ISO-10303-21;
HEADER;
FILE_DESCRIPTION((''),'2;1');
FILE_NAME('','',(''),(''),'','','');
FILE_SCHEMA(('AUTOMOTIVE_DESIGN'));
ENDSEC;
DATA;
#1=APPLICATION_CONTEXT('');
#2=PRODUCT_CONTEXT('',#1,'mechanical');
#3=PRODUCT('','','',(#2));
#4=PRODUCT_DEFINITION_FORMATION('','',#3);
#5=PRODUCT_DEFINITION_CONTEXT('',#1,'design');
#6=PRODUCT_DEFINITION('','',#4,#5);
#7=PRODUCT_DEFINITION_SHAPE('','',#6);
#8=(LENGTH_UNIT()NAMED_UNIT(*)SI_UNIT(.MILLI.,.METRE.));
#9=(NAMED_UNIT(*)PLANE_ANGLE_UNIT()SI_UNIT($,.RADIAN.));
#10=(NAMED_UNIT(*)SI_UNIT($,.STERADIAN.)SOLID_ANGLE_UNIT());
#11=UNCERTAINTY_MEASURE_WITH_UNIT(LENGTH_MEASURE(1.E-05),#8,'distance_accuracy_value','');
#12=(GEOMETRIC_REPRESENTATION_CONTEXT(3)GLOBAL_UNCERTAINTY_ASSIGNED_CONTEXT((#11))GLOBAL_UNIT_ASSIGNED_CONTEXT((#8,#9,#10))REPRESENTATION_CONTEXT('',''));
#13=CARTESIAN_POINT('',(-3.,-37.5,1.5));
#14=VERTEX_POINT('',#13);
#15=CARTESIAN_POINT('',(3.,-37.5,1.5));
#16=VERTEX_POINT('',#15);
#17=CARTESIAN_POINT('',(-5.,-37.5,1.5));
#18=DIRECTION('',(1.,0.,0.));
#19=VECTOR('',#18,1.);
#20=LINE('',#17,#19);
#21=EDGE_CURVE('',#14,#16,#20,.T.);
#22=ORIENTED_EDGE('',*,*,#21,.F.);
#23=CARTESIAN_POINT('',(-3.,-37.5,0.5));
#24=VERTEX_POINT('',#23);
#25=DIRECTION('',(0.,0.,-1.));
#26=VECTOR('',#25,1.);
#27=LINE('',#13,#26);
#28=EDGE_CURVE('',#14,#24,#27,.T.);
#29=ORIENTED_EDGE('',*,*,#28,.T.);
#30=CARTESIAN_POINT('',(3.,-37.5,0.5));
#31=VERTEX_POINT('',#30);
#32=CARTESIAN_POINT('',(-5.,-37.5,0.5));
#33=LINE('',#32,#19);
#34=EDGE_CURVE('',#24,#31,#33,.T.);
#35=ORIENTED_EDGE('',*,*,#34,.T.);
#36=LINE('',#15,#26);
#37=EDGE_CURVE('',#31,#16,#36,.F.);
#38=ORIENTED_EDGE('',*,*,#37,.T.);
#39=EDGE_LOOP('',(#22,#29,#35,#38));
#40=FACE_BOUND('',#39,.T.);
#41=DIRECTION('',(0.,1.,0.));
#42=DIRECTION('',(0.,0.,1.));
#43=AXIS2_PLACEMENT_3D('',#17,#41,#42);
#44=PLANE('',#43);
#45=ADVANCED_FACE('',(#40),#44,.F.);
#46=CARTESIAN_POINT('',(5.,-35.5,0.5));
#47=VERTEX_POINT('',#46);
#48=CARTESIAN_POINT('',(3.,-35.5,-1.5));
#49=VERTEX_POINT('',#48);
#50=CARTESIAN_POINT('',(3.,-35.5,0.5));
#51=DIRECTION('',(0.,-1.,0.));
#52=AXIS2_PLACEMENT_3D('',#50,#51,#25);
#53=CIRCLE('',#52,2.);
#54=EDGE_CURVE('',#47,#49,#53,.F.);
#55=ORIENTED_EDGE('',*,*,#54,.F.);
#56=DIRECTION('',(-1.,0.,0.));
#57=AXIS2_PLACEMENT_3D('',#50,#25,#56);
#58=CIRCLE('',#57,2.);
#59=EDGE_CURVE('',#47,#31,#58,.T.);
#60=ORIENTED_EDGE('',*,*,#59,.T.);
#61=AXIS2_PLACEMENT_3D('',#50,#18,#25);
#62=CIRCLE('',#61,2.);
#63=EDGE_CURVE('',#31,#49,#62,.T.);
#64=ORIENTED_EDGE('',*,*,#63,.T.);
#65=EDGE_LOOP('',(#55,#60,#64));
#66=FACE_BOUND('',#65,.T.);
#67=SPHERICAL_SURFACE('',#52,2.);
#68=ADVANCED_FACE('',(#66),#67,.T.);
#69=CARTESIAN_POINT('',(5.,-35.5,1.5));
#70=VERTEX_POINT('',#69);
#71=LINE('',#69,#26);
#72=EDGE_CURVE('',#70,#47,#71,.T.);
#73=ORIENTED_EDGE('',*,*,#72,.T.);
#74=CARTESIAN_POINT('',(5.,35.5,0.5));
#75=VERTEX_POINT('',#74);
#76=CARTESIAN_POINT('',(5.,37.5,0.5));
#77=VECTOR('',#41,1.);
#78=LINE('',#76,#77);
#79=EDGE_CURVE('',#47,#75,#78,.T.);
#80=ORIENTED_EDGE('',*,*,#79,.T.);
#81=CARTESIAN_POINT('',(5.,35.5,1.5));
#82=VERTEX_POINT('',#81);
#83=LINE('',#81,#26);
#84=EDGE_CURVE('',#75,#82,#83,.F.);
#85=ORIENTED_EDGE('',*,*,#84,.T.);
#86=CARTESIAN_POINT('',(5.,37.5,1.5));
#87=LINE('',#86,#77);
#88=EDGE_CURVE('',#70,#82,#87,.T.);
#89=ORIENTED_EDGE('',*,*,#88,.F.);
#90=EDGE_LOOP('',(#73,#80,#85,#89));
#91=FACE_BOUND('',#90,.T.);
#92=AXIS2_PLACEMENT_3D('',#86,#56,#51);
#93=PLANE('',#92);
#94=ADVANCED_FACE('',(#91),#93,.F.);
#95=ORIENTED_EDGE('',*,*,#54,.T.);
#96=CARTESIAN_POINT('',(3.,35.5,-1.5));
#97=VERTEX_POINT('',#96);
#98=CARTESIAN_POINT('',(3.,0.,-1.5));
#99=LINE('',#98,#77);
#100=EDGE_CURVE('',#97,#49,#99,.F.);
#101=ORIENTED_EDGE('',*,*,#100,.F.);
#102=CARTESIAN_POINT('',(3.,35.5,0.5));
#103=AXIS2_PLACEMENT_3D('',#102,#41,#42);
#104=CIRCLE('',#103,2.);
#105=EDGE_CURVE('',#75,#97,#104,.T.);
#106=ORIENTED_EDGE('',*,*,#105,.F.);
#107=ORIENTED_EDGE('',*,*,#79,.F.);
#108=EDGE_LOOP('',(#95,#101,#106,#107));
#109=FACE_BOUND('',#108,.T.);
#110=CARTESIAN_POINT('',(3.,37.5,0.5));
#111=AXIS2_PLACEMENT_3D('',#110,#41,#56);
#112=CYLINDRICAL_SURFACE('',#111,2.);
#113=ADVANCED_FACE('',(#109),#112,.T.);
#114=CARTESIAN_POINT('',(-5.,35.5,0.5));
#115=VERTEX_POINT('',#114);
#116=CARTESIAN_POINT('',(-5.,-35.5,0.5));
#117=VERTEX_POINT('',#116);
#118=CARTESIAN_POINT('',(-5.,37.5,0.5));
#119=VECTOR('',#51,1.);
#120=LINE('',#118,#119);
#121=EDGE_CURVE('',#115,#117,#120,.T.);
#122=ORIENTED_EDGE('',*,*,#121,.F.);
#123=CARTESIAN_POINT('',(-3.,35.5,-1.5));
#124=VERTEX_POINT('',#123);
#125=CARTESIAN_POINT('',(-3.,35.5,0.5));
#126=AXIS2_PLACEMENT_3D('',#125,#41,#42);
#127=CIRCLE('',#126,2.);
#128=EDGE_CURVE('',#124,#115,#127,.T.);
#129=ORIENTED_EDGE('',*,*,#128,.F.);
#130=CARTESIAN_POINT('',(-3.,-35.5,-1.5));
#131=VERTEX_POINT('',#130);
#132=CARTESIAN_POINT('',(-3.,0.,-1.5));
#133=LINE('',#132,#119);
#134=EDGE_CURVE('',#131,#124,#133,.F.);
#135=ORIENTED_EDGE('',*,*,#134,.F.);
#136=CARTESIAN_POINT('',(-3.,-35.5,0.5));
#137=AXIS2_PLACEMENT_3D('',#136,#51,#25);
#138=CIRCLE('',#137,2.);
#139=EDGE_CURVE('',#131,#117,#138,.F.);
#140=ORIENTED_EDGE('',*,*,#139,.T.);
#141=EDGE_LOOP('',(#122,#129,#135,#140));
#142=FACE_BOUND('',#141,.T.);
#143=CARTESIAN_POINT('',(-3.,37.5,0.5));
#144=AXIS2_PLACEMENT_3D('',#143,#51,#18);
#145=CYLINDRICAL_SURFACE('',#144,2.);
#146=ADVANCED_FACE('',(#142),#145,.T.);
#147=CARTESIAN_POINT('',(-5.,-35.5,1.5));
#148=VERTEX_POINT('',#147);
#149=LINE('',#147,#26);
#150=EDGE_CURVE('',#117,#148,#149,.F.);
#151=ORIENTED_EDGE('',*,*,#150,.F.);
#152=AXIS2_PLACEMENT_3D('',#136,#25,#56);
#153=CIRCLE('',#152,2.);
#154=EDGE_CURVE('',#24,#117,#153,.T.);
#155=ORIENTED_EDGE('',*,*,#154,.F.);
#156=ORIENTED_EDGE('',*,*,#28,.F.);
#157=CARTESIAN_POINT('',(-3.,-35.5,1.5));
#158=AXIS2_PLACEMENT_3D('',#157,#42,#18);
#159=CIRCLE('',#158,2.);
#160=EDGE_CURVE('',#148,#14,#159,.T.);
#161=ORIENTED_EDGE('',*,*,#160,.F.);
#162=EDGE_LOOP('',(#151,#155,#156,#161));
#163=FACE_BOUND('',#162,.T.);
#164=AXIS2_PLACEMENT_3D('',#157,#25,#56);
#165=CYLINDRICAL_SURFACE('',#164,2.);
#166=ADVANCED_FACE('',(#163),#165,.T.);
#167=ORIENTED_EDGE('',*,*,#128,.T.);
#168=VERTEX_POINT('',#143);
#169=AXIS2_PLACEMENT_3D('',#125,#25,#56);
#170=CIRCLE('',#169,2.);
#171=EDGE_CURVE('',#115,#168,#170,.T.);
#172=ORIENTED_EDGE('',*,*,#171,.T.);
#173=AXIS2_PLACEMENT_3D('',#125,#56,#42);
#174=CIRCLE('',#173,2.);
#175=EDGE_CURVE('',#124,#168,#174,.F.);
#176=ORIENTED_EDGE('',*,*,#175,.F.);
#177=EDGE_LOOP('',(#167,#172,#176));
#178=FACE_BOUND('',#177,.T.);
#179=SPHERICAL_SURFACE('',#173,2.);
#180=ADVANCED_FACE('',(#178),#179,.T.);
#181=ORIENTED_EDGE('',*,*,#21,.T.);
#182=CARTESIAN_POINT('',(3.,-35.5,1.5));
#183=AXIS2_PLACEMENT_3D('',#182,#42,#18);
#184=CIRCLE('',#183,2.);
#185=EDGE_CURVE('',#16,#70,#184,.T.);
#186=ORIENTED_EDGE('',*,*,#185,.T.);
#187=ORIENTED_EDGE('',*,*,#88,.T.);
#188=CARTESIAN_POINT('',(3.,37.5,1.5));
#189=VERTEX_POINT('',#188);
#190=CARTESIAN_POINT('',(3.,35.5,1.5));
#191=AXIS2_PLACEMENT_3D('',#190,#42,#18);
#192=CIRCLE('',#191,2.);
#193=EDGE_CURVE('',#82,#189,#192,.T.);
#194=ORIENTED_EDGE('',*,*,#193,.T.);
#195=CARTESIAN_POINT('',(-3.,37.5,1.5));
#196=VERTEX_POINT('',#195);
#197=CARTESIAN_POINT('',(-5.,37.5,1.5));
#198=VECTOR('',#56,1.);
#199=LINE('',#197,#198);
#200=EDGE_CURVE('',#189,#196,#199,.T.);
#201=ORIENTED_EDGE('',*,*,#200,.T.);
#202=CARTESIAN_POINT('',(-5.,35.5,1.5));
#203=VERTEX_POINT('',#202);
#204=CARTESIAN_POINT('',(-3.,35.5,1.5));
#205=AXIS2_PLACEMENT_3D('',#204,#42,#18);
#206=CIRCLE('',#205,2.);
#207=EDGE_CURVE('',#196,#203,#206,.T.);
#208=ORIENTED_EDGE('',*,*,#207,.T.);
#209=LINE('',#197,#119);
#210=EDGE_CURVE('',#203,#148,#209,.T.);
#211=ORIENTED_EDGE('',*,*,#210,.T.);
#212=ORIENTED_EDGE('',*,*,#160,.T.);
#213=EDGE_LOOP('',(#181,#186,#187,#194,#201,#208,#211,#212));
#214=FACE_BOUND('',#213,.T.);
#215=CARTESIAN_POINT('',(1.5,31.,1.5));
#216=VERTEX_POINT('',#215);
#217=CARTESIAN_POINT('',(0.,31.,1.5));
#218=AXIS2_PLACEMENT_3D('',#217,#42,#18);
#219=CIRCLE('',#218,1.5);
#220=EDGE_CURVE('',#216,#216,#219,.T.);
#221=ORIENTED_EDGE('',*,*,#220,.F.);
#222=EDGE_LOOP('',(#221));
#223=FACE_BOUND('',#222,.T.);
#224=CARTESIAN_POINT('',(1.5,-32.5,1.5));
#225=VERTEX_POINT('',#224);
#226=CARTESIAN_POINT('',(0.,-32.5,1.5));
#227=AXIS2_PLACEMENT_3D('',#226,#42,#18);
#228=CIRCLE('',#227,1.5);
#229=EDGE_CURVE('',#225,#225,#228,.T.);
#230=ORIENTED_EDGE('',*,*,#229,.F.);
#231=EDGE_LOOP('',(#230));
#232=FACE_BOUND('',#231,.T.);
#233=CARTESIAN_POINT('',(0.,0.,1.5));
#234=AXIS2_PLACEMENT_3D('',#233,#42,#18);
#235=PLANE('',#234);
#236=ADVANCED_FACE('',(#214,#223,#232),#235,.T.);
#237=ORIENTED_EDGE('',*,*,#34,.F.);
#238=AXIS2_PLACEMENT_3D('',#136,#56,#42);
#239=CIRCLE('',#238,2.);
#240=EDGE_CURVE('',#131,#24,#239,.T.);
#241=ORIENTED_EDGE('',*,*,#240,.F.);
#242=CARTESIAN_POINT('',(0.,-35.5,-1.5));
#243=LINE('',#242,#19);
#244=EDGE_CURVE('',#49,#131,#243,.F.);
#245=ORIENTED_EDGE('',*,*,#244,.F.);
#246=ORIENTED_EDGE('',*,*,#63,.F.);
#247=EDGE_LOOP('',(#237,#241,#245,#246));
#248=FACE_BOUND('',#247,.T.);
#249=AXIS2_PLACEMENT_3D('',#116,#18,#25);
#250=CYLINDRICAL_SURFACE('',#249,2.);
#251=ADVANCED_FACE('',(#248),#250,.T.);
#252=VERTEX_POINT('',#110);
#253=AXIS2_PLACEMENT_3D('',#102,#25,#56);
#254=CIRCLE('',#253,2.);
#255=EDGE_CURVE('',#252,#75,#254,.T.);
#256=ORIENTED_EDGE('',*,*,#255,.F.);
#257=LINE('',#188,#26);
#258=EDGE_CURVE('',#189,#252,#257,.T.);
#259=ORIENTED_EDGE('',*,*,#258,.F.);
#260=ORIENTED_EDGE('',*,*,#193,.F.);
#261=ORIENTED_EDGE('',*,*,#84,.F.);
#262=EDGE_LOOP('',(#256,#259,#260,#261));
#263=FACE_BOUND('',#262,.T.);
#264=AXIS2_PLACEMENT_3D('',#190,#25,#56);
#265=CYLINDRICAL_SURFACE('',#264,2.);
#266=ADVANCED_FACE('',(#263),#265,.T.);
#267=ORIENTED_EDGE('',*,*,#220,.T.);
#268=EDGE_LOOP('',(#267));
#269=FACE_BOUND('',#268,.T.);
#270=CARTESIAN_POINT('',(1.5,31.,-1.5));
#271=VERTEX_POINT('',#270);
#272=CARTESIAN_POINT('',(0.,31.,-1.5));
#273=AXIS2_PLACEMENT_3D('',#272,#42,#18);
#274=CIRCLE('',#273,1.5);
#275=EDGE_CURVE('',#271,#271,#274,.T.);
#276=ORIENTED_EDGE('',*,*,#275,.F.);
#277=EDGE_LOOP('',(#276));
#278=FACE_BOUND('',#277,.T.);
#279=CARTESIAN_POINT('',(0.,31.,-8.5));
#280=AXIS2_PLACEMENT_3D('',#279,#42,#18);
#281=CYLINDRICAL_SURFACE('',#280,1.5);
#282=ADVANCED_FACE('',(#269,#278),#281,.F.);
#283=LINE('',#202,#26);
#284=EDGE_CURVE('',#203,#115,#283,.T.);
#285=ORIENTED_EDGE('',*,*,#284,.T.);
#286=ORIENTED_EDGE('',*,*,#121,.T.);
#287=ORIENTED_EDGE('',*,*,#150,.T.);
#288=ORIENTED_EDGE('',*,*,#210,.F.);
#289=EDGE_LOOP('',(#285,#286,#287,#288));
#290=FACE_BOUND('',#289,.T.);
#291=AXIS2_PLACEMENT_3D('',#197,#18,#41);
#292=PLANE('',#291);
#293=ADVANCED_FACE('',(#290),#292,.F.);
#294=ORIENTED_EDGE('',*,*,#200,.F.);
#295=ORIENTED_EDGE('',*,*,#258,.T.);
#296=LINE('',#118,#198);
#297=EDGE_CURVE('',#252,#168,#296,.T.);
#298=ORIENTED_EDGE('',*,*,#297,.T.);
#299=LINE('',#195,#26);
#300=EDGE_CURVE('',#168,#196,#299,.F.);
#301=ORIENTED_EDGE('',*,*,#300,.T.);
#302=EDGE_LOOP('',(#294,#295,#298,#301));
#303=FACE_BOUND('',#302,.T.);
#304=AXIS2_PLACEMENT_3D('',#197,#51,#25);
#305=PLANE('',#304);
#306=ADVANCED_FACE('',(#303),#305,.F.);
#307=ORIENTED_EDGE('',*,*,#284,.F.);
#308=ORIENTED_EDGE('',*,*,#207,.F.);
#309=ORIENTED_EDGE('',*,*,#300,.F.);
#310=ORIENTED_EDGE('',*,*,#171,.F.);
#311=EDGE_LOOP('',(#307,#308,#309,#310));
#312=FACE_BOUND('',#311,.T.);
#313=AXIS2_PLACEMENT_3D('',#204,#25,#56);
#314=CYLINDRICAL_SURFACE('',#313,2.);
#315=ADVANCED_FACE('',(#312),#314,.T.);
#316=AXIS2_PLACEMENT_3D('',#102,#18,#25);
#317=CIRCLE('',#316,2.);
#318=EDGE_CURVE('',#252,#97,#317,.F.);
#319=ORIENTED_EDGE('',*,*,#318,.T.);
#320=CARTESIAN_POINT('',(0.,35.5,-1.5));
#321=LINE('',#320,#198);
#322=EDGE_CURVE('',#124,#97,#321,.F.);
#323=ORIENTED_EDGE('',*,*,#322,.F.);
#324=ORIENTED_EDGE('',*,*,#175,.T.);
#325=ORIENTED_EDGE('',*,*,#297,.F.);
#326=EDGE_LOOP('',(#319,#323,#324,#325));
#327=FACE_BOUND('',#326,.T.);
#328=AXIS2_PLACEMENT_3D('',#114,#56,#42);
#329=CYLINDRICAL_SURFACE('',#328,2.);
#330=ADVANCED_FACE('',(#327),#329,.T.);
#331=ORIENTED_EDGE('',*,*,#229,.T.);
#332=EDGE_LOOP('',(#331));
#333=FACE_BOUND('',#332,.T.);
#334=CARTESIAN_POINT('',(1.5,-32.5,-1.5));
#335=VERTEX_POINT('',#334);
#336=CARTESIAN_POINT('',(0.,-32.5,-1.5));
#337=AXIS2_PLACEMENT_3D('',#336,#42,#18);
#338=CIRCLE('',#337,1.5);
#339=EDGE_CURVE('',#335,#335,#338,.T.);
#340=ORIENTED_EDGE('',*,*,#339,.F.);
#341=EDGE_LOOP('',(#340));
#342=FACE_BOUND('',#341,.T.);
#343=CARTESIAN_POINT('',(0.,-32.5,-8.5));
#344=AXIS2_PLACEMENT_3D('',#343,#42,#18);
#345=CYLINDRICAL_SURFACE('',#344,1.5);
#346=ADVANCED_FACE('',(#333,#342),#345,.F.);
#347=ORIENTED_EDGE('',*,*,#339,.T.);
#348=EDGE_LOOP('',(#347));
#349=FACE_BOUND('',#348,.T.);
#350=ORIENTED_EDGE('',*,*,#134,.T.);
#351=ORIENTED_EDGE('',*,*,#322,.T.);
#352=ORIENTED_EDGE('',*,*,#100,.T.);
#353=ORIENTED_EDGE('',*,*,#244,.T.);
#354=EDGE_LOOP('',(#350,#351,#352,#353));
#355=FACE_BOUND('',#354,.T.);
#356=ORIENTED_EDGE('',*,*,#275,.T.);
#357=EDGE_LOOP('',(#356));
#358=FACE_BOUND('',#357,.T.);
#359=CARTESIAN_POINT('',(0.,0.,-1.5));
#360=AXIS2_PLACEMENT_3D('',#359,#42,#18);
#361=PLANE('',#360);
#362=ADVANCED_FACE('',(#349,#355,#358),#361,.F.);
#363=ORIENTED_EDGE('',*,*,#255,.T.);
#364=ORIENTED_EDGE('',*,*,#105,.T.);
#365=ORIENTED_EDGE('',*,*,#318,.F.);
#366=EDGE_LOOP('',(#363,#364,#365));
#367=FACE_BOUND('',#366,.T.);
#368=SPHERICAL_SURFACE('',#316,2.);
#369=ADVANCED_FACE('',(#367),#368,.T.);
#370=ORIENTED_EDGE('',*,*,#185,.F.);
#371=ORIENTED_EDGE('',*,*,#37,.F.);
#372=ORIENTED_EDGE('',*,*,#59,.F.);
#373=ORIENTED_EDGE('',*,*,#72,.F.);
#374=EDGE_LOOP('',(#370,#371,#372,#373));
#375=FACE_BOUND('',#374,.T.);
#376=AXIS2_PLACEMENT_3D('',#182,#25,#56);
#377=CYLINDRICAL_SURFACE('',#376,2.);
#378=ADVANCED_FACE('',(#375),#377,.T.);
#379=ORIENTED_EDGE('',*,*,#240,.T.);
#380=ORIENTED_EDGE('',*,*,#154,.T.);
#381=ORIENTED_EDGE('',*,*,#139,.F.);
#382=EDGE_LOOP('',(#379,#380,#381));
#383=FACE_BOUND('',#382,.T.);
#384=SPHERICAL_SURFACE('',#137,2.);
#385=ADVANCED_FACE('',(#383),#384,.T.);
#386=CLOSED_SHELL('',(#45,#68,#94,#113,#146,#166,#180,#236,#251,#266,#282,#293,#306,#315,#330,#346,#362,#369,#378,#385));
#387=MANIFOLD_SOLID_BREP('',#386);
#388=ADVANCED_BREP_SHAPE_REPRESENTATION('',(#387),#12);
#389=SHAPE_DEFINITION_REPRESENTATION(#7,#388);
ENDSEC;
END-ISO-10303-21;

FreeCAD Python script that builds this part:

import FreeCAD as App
import Part
import Sketcher

V = App.Vector


def edges_at(feature, points):
    """Names of the edges that pass closest to the given points."""
    edges = feature.Shape.Edges
    near = lambda p: min(range(len(edges)), key=lambda i: edges[i].distToShape(Part.Vertex(*p))[0])
    return sorted({f"Edge{near(p) + 1}" for p in points})


def add_polygon(sketch, points):
    """Adds a closed chain of lines whose ends are joined by coincident constraints."""
    first, n = sketch.GeometryCount, len(points)
    for a, b in zip(points, points[1:] + points[:1]):
        sketch.addGeometry(Part.LineSegment(App.Vector(*a, 0), App.Vector(*b, 0)), False)
    for i in range(n):
        sketch.addConstraint(Sketcher.Constraint("Coincident", first + i, 2, first + (i + 1) % n, 1))

doc = App.newDocument("Part")
body = doc.addObject("PartDesign::Body", "Body")

# Sketch on XY plane
sketch1 = body.newObject("Sketcher::SketchObject", "Sketch")
sketch1.AttachmentSupport = (doc.getObject("XY_Plane"), [""])
sketch1.MapMode = "FlatFace"
add_polygon(sketch1, [(-5, 38), (-5, -38), (5, -38), (5, 38)])  # lines 0-3
sketch1.addConstraint([
    Sketcher.Constraint("Vertical", 0),
    Sketcher.Constraint("Horizontal", 1),
    Sketcher.Constraint("Vertical", 2),
    Sketcher.Constraint("Horizontal", 3),
    Sketcher.Constraint("Symmetric", 0, 2, 2, 2, -1, 1),
    Sketcher.Constraint("DistanceX", 1, 1, 1, 2, 10.0),
    Sketcher.Constraint("DistanceY", 0, 2, 0, 1, 75.0),
])
pad1 = body.newObject("PartDesign::Pad", "Pad")
pad1.Profile = sketch1
pad1.Length = 3
pad1.Midplane = True
doc.recompute()

fillet = body.newObject("PartDesign::Fillet", "Fillet")
fillet.Base = (pad1, edges_at(pad1, [
    (0, -37.5, -1.5),
    (-5, 0, -1.5),
    (0, 37.5, -1.5),
    (5, 0, -1.5),
    (5, -37.5, 0),
    (-5, -37.5, 0),
    (-5, 37.5, 0),
    (5, 37.5, 0),
]))
fillet.Radius = 2

# Sketch on XY plane
sketch2 = body.newObject("Sketcher::SketchObject", "Sketch001")
sketch2.AttachmentSupport = (doc.getObject("XY_Plane"), [""])
sketch2.MapMode = "FlatFace"
sketch2.AttachmentOffset = App.Placement(V(0, 0, 1.5), App.Rotation())
sketch2.addGeometry([
    Part.Circle(V(0, 31, 0), V(0, 0, 1), 1.5),
    Part.Circle(V(0, -32.5, 0), V(0, 0, 1), 1.5),
], False)
sketch2.addConstraint([
    Sketcher.Constraint("Equal", 0, 1),
    Sketcher.Constraint("PointOnObject", 0, 3, -2),
    Sketcher.Constraint("PointOnObject", 1, 3, -2),
    Sketcher.Constraint("Diameter", 0, 3.0),
    Sketcher.Constraint("DistanceY", -1, 1, 0, 3, 31.0),
    Sketcher.Constraint("DistanceY", 1, 3, -1, 1, 32.5),
])
pocket1 = body.newObject("PartDesign::Pocket", "Pocket")
pocket1.Profile = sketch2
pocket1.Length = 10

doc.recompute()
